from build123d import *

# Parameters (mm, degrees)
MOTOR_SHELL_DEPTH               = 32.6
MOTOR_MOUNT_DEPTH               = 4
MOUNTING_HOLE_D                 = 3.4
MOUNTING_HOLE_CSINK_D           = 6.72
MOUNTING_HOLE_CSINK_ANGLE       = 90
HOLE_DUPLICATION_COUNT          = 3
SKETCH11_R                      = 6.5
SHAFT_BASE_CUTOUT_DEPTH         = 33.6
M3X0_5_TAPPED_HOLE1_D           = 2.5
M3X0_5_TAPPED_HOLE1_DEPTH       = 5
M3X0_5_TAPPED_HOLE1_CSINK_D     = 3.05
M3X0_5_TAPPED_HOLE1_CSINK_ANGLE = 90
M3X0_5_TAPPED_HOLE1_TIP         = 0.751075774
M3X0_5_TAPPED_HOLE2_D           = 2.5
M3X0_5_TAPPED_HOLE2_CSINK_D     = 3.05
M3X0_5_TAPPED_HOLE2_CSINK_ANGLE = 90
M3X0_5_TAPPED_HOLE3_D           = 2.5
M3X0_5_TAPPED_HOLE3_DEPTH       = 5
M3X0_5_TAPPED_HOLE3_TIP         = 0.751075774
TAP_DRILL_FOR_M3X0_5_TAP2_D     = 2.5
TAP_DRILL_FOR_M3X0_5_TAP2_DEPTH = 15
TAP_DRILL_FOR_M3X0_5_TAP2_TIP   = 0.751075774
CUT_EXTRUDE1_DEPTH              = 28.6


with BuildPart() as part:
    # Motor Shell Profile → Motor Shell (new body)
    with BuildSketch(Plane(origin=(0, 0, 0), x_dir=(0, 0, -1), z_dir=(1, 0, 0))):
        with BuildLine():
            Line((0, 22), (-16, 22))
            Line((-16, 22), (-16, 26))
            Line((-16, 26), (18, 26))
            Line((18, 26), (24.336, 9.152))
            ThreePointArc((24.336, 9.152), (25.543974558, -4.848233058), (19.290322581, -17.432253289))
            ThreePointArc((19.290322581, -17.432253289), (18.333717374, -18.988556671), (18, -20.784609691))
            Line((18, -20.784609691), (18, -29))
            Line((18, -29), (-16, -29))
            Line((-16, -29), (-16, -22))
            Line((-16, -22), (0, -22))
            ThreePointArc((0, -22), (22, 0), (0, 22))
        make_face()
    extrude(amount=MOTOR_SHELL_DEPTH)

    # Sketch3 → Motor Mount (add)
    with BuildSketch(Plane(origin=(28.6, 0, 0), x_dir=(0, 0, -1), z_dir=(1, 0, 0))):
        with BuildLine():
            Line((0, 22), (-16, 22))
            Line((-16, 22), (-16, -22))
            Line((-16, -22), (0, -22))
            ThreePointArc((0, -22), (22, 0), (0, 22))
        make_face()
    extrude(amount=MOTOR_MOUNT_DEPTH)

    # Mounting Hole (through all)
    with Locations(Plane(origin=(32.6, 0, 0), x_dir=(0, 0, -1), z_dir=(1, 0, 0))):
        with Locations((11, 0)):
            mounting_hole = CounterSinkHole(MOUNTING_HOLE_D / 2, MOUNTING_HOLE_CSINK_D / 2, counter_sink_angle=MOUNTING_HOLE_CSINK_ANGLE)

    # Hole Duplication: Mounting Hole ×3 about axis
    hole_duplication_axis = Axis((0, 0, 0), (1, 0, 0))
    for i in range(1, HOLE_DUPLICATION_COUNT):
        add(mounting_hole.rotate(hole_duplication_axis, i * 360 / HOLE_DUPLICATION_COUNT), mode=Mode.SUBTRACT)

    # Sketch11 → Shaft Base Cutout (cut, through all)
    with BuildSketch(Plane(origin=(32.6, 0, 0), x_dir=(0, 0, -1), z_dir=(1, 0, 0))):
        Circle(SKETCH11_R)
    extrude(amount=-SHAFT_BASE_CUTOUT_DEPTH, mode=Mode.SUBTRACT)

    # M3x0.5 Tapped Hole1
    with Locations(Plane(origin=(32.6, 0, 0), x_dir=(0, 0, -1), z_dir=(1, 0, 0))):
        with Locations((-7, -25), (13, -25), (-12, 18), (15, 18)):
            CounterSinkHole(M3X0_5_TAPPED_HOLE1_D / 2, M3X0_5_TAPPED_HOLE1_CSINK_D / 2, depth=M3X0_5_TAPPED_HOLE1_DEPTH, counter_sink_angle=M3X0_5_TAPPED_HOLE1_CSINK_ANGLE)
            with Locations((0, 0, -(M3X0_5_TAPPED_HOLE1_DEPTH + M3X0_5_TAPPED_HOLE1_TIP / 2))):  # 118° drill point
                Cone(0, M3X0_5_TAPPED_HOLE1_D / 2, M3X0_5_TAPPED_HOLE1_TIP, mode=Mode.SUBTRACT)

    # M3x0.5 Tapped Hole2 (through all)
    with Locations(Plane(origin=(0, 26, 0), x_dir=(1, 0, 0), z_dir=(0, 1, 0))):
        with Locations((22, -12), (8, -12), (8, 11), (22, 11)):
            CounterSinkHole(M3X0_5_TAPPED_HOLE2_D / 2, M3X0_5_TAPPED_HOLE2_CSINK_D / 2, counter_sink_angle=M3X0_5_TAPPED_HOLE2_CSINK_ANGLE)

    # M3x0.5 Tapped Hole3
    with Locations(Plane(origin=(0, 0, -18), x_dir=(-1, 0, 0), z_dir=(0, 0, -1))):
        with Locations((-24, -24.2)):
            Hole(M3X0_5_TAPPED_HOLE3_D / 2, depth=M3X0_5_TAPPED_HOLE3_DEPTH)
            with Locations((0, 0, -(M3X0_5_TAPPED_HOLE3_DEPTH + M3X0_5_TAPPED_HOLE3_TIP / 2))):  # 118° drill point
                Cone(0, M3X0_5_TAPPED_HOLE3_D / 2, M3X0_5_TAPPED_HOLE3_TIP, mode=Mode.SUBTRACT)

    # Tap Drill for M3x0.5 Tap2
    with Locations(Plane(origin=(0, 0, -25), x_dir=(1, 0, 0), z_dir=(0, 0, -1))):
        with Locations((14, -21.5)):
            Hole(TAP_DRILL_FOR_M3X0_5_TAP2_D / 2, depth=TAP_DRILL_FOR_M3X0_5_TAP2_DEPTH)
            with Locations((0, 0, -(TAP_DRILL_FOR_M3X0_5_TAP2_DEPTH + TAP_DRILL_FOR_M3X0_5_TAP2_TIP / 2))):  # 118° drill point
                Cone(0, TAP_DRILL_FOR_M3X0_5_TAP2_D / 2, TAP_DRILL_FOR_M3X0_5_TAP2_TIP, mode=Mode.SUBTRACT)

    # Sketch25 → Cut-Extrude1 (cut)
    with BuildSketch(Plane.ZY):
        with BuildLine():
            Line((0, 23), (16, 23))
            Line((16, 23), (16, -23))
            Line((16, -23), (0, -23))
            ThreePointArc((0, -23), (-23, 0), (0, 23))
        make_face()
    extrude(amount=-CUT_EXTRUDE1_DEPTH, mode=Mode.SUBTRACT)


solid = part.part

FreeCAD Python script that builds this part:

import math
import FreeCAD as App
import Part
import Sketcher
Q = App.Units.Quantity

doc = App.newDocument("Part")
body = doc.addObject("PartDesign::Body", "Body")

# Sketch on YZ plane
sketch1 = body.newObject("Sketcher::SketchObject", "Sketch")
sketch1.AttachmentSupport = (doc.getObject("YZ_Plane"), [""])
sketch1.MapMode = "FlatFace"
sketch1.addGeometry([
    Part.LineSegment(App.Vector(22, 16, 0), App.Vector(22, 0, 0)),  # 0
    Part.ArcOfCircle(Part.Circle(App.Vector(0, 0, 0), App.Vector(0, 0, 1), 22), math.radians(180), math.radians(360)),  # 1
    Part.LineSegment(App.Vector(-22, 0, 0), App.Vector(-22, 16, 0)),  # 2
    Part.LineSegment(App.Vector(-22, 16, 0), App.Vector(-29, 16, 0)),  # 3
    Part.LineSegment(App.Vector(-29, 16, 0), App.Vector(-29, -18, 0)),  # 4
    Part.LineSegment(App.Vector(-29, -18, 0), App.Vector(-20.8, -18, 0)),  # 5
    Part.ArcOfCircle(Part.Circle(App.Vector(-20.8, -23, 0), App.Vector(0, 0, 1), 5), math.radians(48), math.radians(90)),  # 6
    Part.ArcOfCircle(Part.Circle(App.Vector(0, 0, 0), App.Vector(0, 0, 1), 26), math.radians(-132), math.radians(-69)),  # 7
    Part.LineSegment(App.Vector(9.2, -24.3, 0), App.Vector(26, -18, 0)),  # 8
    Part.LineSegment(App.Vector(26, -18, 0), App.Vector(26, 16, 0)),  # 9
    Part.LineSegment(App.Vector(26, 16, 0), App.Vector(22, 16, 0)),  # 10
], False)
sketch1.addConstraint([
    Sketcher.Constraint("Tangent", 0, 2, 1, 2),
    Sketcher.Constraint("Tangent", 1, 1, 2, 1),
    Sketcher.Constraint("Coincident", 2, 2, 3, 1),
    Sketcher.Constraint("Coincident", 3, 2, 4, 1),
    Sketcher.Constraint("Coincident", 4, 2, 5, 1),
    Sketcher.Constraint("Tangent", 5, 2, 6, 2),
    Sketcher.Constraint("Tangent", 6, 1, 7, 1),
    Sketcher.Constraint("Tangent", 7, 2, 8, 1),
    Sketcher.Constraint("Coincident", 8, 2, 9, 1),
    Sketcher.Constraint("Coincident", 9, 2, 10, 1),
    Sketcher.Constraint("Coincident", 10, 2, 0, 1),
    Sketcher.Constraint("Vertical", 0),
    Sketcher.Constraint("Vertical", 2),
    Sketcher.Constraint("Horizontal", 3),
    Sketcher.Constraint("Vertical", 4),
    Sketcher.Constraint("Horizontal", 5),
    Sketcher.Constraint("Vertical", 9),
    Sketcher.Constraint("Horizontal", 10),
    Sketcher.Constraint("Coincident", 1, 3, -1, 1),
    Sketcher.Constraint("Coincident", 7, 3, -1, 1),
    Sketcher.Constraint("Horizontal", 5, 2, 8, 2),
    Sketcher.Constraint("Horizontal", 3, 2, 9, 2),
    Sketcher.Constraint("Radius", 1, Q("22 mm")),
    Sketcher.Constraint("Radius", 6, Q("5 mm")),
    Sketcher.Constraint("Radius", 7, Q("26 mm")),
    Sketcher.Constraint("DistanceX", 3, 2, 3, 1, Q("7 mm")),
    Sketcher.Constraint("DistanceX", 10, 2, 10, 1, Q("4 mm")),
    Sketcher.Constraint("DistanceY", 0, 2, 0, 1, Q("16 mm")),
    Sketcher.Constraint("DistanceY", 4, 2, 4, 1, Q("34 mm")),
])
pad1 = body.newObject("PartDesign::Pad", "Pad")
pad1.Profile = sketch1
pad1.Length = 32.6

# Sketch on YZ plane
sketch2 = body.newObject("Sketcher::SketchObject", "Sketch001")
sketch2.AttachmentSupport = (doc.getObject("YZ_Plane"), [""])
sketch2.MapMode = "FlatFace"
sketch2.AttachmentOffset = App.Placement(App.Vector(0, 0, 28.6), App.Rotation())
sketch2.addGeometry([
    Part.LineSegment(App.Vector(22, 0, 0), App.Vector(22, 16, 0)),
    Part.LineSegment(App.Vector(22, 16, 0), App.Vector(-22, 16, 0)),
    Part.LineSegment(App.Vector(-22, 16, 0), App.Vector(-22, 0, 0)),
    Part.ArcOfCircle(Part.Circle(App.Vector(0, 0, 0), App.Vector(0, 0, 1), 22), math.radians(180), math.radians(360)),
], False)
sketch2.addConstraint([
    Sketcher.Constraint("Coincident", 0, 2, 1, 1),
    Sketcher.Constraint("Coincident", 1, 2, 2, 1),
    Sketcher.Constraint("Tangent", 2, 2, 3, 1),
    Sketcher.Constraint("Tangent", 3, 2, 0, 1),
    Sketcher.Constraint("Vertical", 0),
    Sketcher.Constraint("Horizontal", 1),
    Sketcher.Constraint("Vertical", 2),
    Sketcher.Constraint("Coincident", 3, 3, -1, 1),
    Sketcher.Constraint("Radius", 3, Q("22 mm")),
    Sketcher.Constraint("DistanceY", 0, 1, 0, 2, Q("16 mm")),
])
pad2 = body.newObject("PartDesign::Pad", "Pad001")
pad2.Profile = sketch2
pad2.Length = 4

# Sketch on YZ plane
sketch3 = body.newObject("Sketcher::SketchObject", "Sketch002")
sketch3.AttachmentSupport = (doc.getObject("YZ_Plane"), [""])
sketch3.MapMode = "FlatFace"
sketch3.AttachmentOffset = App.Placement(App.Vector(0, 0, 32.6), App.Rotation())
sketch3.addGeometry(Part.Circle(App.Vector(0, -11, 0), App.Vector(0, 0, 1), 1.7), False)
sketch3.addConstraint([
    Sketcher.Constraint("PointOnObject", 0, 3, -2),
    Sketcher.Constraint("Diameter", 0, Q("3.4 mm")),
    Sketcher.Constraint("DistanceY", 0, 3, -1, 1, Q("11 mm")),
])
doc.recompute()
hole = body.newObject("PartDesign::Hole", "Hole")
hole.Profile = sketch3
hole.ThreadType = "None"
hole.Diameter = 3.4
hole.DepthType = "ThroughAll"
hole.HoleCutType = "Countersink"
hole.HoleCutDiameter = 6.72
hole.HoleCutCountersinkAngle = 90
doc.recompute()

polarpattern = body.newObject("PartDesign::PolarPattern", "PolarPattern")
polarpattern.Originals = [hole]
polarpattern.Axis = (doc.getObject("X_Axis"), [""])
polarpattern.Angle = 360
polarpattern.Occurrences = 3
body.Tip = polarpattern

# Sketch on YZ plane
sketch4 = body.newObject("Sketcher::SketchObject", "Sketch003")
sketch4.AttachmentSupport = (doc.getObject("YZ_Plane"), [""])
sketch4.MapMode = "FlatFace"
sketch4.AttachmentOffset = App.Placement(App.Vector(0, 0, 32.6), App.Rotation())
sketch4.addGeometry(Part.Circle(App.Vector(0, 0, 0), App.Vector(0, 0, 1), 6), False)
sketch4.addConstraint([
    Sketcher.Constraint("Coincident", 0, 3, -1, 1),
    Sketcher.Constraint("Diameter", 0, Q("13 mm")),
])
pocket1 = body.newObject("PartDesign::Pocket", "Pocket")
pocket1.Profile = sketch4
pocket1.Type = "ThroughAll"

# Sketch on YZ plane
sketch5 = body.newObject("Sketcher::SketchObject", "Sketch004")
sketch5.AttachmentSupport = (doc.getObject("YZ_Plane"), [""])
sketch5.MapMode = "FlatFace"
sketch5.AttachmentOffset = App.Placement(App.Vector(0, 0, 32.6), App.Rotation())
sketch5.addGeometry([
    Part.Circle(App.Vector(-25, 7, 0), App.Vector(0, 0, 1), 1.2),
    Part.Circle(App.Vector(-25, -13, 0), App.Vector(0, 0, 1), 1.2),
    Part.Circle(App.Vector(18, 12, 0), App.Vector(0, 0, 1), 1.2),
    Part.Circle(App.Vector(18, -15, 0), App.Vector(0, 0, 1), 1.2),
], False)
sketch5.addConstraint([
    Sketcher.Constraint("Equal", 0, 1),
    Sketcher.Constraint("Equal", 1, 2),
    Sketcher.Constraint("Equal", 2, 3),
    Sketcher.Constraint("Vertical", 0, 3, 1, 3),
    Sketcher.Constraint("Vertical", 2, 3, 3, 3),
    Sketcher.Constraint("Diameter", 0, Q("2.5 mm")),
    Sketcher.Constraint("DistanceX", 0, 3, -1, 1, Q("25 mm")),
    Sketcher.Constraint("DistanceY", -1, 1, 0, 3, Q("7 mm")),
    Sketcher.Constraint("DistanceY", 1, 3, -1, 1, Q("13 mm")),
    Sketcher.Constraint("DistanceX", -1, 1, 2, 3, Q("18 mm")),
    Sketcher.Constraint("DistanceY", -1, 1, 2, 3, Q("12 mm")),
    Sketcher.Constraint("DistanceY", 3, 3, -1, 1, Q("15 mm")),
])
doc.recompute()
hole2 = body.newObject("PartDesign::Hole", "Hole001")
hole2.Profile = sketch5
hole2.ThreadType = "None"
hole2.Diameter = 2.5
hole2.DepthType = "Dimension"
hole2.Depth = 5
hole2.DrillPoint = "Angled"
hole2.DrillPointAngle = 118
hole2.HoleCutType = "Countersink"
hole2.HoleCutDiameter = 3.05
hole2.HoleCutCountersinkAngle = 90

# Sketch on XZ plane
sketch6 = body.newObject("Sketcher::SketchObject", "Sketch005")
sketch6.AttachmentSupport = (doc.getObject("XZ_Plane"), [""])
sketch6.MapMode = "FlatFace"
sketch6.AttachmentOffset = App.Placement(App.Vector(0, 0, -26), App.Rotation())
sketch6.addGeometry([
    Part.Circle(App.Vector(22, 12, 0), App.Vector(0, 0, 1), 1.2),
    Part.Circle(App.Vector(8, 12, 0), App.Vector(0, 0, 1), 1.2),
    Part.Circle(App.Vector(8, -11, 0), App.Vector(0, 0, 1), 1.2),
    Part.Circle(App.Vector(22, -11, 0), App.Vector(0, 0, 1), 1.2),
], False)
sketch6.addConstraint([
    Sketcher.Constraint("Equal", 0, 1),
    Sketcher.Constraint("Equal", 1, 2),
    Sketcher.Constraint("Equal", 2, 3),
    Sketcher.Constraint("Horizontal", 0, 3, 1, 3),
    Sketcher.Constraint("Horizontal", 2, 3, 3, 3),
    Sketcher.Constraint("Vertical", 1, 3, 2, 3),
    Sketcher.Constraint("Vertical", 0, 3, 3, 3),
    Sketcher.Constraint("Diameter", 0, Q("2.5 mm")),
    Sketcher.Constraint("DistanceX", -1, 1, 0, 3, Q("22 mm")),
    Sketcher.Constraint("DistanceY", -1, 1, 0, 3, Q("12 mm")),
    Sketcher.Constraint("DistanceX", -1, 1, 1, 3, Q("8 mm")),
    Sketcher.Constraint("DistanceY", 2, 3, -1, 1, Q("11 mm")),
])
doc.recompute()
hole3 = body.newObject("PartDesign::Hole", "Hole002")
hole3.Profile = sketch6
hole3.ThreadType = "None"
hole3.Diameter = 2.5
hole3.DepthType = "ThroughAll"
hole3.HoleCutType = "Countersink"
hole3.HoleCutDiameter = 3.05
hole3.HoleCutCountersinkAngle = 90
hole3.Reversed = True

# Sketch on XY plane
sketch7 = body.newObject("Sketcher::SketchObject", "Sketch006")
sketch7.AttachmentSupport = (doc.getObject("XY_Plane"), [""])
sketch7.MapMode = "FlatFace"
sketch7.AttachmentOffset = App.Placement(App.Vector(0, 0, -18), App.Rotation())
sketch7.addGeometry(Part.Circle(App.Vector(24, -24.2, 0), App.Vector(0, 0, 1), 1.2), False)
sketch7.addConstraint([
    Sketcher.Constraint("Diameter", 0, Q("2.5 mm")),
    Sketcher.Constraint("DistanceX", -1, 1, 0, 3, Q("24 mm")),
    Sketcher.Constraint("DistanceY", 0, 3, -1, 1, Q("24.2 mm")),
])
doc.recompute()
hole4 = body.newObject("PartDesign::Hole", "Hole003")
hole4.Profile = sketch7
hole4.ThreadType = "None"
hole4.Diameter = 2.5
hole4.DepthType = "Dimension"
hole4.Depth = 5
hole4.DrillPoint = "Angled"
hole4.DrillPointAngle = 118
hole4.Reversed = True

# Sketch on XY plane
sketch8 = body.newObject("Sketcher::SketchObject", "Sketch007")
sketch8.AttachmentSupport = (doc.getObject("XY_Plane"), [""])
sketch8.MapMode = "FlatFace"
sketch8.AttachmentOffset = App.Placement(App.Vector(0, 0, -25), App.Rotation())
sketch8.addGeometry(Part.Circle(App.Vector(14, 21.5, 0), App.Vector(0, 0, 1), 1.2), False)
sketch8.addConstraint([
    Sketcher.Constraint("Diameter", 0, Q("2.5 mm")),
    Sketcher.Constraint("DistanceX", -1, 1, 0, 3, Q("14 mm")),
    Sketcher.Constraint("DistanceY", -1, 1, 0, 3, Q("21.5 mm")),
])
doc.recompute()
hole5 = body.newObject("PartDesign::Hole", "Hole004")
hole5.Profile = sketch8
hole5.ThreadType = "None"
hole5.Diameter = 2.5
hole5.DepthType = "Dimension"
hole5.Depth = 15
hole5.DrillPoint = "Angled"
hole5.DrillPointAngle = 118
hole5.Reversed = True

# Sketch on YZ plane
sketch9 = body.newObject("Sketcher::SketchObject", "Sketch008")
sketch9.AttachmentSupport = (doc.getObject("YZ_Plane"), [""])
sketch9.MapMode = "FlatFace"
sketch9.addGeometry([
    Part.LineSegment(App.Vector(23, 16, 0), App.Vector(23, 0, 0)),
    Part.ArcOfCircle(Part.Circle(App.Vector(0, 0, 0), App.Vector(0, 0, 1), 23), math.radians(180), math.radians(360)),
    Part.LineSegment(App.Vector(-23, 0, 0), App.Vector(-23, 16, 0)),
    Part.LineSegment(App.Vector(-23, 16, 0), App.Vector(23, 16, 0)),
], False)
sketch9.addConstraint([
    Sketcher.Constraint("Tangent", 0, 2, 1, 2),
    Sketcher.Constraint("Tangent", 1, 1, 2, 1),
    Sketcher.Constraint("Coincident", 2, 2, 3, 1),
    Sketcher.Constraint("Coincident", 3, 2, 0, 1),
    Sketcher.Constraint("Vertical", 0),
    Sketcher.Constraint("Vertical", 2),
    Sketcher.Constraint("Horizontal", 3),
    Sketcher.Constraint("Coincident", 1, 3, -1, 1),
    Sketcher.Constraint("Radius", 1, Q("23 mm")),
    Sketcher.Constraint("DistanceY", 0, 2, 0, 1, Q("16 mm")),
])
pocket2 = body.newObject("PartDesign::Pocket", "Pocket001")
pocket2.Profile = sketch9
pocket2.Length = 28.6
pocket2.Reversed = True

doc.recompute()
